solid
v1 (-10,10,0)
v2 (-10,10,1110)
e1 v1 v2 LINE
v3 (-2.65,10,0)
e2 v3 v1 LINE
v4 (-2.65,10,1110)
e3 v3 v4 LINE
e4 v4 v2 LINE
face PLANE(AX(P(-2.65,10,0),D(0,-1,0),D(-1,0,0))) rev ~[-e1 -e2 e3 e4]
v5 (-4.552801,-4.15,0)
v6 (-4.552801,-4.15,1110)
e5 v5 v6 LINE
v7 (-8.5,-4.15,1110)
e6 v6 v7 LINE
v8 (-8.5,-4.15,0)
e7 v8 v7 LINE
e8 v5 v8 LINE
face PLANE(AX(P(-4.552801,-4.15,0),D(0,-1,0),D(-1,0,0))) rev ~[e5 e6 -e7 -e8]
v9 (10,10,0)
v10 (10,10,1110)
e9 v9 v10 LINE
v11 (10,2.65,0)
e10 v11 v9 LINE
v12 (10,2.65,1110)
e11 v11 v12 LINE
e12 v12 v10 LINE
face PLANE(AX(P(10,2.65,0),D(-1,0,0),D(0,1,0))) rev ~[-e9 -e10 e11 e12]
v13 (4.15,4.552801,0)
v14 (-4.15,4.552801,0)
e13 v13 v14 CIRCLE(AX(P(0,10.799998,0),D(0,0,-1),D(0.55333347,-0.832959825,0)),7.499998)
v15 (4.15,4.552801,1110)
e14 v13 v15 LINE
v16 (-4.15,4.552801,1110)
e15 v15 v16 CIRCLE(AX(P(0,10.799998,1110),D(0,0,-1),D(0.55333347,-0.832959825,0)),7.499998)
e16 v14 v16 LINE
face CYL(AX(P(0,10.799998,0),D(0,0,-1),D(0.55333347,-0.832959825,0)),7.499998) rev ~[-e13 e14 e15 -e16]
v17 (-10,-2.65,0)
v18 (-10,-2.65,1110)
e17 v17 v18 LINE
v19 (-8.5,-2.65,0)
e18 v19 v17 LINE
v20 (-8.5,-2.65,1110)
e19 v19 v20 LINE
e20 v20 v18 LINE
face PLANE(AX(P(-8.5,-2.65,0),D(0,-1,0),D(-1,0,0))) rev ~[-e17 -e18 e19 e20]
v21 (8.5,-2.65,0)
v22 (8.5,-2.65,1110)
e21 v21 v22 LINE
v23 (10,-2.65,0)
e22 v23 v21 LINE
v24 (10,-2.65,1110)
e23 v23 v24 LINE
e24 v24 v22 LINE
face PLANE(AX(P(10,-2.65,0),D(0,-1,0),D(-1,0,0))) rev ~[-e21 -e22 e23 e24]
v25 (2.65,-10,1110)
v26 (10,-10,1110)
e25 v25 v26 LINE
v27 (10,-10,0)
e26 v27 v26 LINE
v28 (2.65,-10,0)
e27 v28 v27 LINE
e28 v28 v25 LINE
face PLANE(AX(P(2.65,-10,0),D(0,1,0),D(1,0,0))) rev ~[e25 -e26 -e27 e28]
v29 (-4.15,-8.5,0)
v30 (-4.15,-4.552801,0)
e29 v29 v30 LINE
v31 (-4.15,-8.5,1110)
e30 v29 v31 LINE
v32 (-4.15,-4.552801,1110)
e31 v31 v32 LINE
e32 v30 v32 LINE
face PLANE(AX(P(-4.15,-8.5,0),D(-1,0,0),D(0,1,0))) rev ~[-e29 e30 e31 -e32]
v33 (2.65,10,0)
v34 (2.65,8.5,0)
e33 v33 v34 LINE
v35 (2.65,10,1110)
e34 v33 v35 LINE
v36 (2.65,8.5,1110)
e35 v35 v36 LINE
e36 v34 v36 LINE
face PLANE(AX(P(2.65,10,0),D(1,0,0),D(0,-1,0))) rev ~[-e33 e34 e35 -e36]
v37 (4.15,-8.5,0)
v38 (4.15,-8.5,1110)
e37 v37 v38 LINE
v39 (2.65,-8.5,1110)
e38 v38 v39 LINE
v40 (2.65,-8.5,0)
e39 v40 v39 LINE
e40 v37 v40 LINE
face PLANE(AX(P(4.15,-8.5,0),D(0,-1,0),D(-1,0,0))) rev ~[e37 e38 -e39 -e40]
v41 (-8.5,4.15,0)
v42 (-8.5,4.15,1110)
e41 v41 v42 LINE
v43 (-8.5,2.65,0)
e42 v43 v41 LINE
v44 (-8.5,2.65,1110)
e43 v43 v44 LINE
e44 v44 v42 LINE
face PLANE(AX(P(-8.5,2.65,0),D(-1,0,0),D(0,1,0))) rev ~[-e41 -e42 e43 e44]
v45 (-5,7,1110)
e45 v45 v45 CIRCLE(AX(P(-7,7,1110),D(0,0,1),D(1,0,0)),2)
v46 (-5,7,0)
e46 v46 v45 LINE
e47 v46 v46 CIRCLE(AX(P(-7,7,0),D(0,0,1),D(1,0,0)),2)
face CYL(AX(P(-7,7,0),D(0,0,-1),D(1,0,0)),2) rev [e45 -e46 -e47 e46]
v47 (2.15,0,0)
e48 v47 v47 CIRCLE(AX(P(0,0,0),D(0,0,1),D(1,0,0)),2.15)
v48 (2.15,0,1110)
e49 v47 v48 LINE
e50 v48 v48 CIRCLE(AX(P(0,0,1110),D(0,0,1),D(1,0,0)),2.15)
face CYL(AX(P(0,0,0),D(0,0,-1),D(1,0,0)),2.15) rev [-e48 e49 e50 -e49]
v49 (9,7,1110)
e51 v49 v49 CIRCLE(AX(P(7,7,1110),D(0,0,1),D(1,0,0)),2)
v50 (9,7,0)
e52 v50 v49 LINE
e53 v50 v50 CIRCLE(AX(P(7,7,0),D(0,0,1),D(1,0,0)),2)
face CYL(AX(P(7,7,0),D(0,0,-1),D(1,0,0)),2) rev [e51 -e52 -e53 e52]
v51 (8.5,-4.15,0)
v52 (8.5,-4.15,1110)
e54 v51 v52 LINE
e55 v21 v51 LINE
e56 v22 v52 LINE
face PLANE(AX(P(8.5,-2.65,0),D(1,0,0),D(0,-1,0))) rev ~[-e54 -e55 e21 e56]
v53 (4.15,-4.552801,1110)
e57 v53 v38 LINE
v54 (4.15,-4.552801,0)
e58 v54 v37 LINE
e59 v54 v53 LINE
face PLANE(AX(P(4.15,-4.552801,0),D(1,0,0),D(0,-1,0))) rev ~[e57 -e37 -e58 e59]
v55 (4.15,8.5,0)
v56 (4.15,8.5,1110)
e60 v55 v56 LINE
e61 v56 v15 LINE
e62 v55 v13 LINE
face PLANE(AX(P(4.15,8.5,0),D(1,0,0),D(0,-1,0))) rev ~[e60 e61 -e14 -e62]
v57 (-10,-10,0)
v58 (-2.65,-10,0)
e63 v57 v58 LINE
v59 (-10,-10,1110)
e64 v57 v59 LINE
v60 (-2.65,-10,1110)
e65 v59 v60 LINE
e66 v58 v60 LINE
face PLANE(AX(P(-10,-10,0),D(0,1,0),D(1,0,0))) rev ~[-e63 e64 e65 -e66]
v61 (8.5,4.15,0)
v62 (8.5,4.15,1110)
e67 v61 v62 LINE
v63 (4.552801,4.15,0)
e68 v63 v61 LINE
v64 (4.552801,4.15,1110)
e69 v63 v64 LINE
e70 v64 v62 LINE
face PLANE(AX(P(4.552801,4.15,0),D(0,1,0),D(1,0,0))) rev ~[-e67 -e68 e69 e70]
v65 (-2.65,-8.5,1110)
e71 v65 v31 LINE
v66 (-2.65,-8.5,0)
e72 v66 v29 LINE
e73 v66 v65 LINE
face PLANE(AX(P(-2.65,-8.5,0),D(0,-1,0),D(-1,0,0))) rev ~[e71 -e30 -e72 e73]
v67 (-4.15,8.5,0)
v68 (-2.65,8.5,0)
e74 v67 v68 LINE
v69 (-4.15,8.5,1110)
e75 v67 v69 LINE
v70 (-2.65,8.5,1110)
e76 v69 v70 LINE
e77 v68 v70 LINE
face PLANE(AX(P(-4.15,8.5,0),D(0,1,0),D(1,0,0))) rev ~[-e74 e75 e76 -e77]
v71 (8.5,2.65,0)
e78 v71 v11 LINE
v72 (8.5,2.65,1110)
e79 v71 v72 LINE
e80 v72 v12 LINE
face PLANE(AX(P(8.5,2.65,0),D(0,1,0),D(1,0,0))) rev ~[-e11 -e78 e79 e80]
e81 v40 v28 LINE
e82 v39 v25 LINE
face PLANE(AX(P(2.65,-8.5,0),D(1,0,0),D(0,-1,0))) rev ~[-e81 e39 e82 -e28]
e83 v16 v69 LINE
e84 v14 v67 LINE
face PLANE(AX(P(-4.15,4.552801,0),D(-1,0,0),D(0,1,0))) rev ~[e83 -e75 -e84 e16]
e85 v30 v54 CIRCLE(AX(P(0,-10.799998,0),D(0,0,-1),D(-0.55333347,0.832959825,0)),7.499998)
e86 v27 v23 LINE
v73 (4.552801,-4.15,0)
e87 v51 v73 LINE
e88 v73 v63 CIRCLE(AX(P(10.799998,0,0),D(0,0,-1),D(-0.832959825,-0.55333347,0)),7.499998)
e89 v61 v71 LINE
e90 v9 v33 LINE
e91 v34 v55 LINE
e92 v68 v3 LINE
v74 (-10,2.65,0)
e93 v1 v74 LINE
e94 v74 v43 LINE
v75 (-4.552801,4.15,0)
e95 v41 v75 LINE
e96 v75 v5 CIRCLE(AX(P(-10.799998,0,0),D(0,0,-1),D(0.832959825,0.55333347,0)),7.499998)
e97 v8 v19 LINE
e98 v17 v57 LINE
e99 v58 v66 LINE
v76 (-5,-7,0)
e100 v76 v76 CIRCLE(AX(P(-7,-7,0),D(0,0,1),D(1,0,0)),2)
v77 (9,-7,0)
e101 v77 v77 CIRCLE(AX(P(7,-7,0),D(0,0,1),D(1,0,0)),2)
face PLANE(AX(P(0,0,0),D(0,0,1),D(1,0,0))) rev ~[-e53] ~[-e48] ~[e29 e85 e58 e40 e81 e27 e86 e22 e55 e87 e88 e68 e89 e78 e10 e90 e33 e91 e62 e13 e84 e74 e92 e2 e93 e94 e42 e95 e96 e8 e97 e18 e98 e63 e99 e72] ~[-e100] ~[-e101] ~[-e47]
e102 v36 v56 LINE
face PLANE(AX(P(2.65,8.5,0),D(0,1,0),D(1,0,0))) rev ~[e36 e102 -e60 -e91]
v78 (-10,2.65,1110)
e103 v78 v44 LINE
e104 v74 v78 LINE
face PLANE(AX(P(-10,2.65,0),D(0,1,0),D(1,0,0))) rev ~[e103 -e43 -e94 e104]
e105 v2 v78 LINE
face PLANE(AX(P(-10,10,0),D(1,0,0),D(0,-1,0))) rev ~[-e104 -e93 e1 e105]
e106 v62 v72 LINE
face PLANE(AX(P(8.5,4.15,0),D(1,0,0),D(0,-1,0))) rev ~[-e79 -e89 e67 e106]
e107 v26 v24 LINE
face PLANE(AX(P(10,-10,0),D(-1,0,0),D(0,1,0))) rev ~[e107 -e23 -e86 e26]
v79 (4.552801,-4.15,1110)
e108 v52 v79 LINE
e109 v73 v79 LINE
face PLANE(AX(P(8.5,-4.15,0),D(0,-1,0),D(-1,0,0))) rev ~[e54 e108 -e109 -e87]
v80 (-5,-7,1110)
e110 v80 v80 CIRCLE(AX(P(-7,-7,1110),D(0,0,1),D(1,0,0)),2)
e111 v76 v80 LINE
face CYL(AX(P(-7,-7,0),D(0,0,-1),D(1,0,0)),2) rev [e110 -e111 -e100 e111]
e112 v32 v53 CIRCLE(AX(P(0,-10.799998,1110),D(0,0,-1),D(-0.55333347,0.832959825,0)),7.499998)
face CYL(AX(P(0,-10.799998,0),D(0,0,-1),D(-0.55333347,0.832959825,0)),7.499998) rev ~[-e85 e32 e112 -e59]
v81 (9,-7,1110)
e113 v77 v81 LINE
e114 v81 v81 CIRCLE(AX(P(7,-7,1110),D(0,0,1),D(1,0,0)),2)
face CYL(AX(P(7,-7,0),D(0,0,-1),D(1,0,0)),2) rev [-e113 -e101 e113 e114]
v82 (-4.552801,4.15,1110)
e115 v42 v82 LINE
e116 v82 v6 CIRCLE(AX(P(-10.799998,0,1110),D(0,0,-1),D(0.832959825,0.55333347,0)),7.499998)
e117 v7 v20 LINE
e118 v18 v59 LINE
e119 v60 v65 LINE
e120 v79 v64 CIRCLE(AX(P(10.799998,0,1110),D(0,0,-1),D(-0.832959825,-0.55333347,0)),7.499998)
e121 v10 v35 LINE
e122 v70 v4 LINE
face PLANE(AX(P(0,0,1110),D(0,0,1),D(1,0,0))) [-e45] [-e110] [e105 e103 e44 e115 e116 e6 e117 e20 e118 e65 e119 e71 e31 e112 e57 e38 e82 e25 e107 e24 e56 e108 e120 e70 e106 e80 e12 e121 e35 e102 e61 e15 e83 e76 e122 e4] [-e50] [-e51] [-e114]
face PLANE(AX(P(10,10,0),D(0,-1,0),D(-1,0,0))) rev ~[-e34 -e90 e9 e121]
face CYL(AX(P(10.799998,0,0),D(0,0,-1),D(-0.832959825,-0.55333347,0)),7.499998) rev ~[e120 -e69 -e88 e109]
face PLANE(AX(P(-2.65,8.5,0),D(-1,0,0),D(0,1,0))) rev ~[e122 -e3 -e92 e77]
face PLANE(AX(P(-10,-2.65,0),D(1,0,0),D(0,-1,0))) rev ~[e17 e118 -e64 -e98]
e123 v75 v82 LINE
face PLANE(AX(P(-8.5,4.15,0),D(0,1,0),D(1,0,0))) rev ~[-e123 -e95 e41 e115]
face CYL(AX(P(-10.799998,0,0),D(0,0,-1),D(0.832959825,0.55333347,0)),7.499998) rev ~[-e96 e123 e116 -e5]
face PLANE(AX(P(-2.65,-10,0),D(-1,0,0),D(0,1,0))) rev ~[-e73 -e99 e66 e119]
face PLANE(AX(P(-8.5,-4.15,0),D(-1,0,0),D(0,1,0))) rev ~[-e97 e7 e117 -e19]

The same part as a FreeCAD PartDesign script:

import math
import FreeCAD as App
import Part
import Sketcher

V = App.Vector
Q = App.Units.Quantity

doc = App.newDocument("Part")
body = doc.addObject("PartDesign::Body", "Body")

sketch1 = body.newObject("Sketcher::SketchObject", "Sketch")
sketch1.AttachmentSupport = (doc.getObject("XY_Plane"), [""])
sketch1.MapMode = "FlatFace"
sketch1.addGeometry(Part.LineSegment(V(-10, 10, 0), V(-10, 2.65, 0)), False)
sketch1.addGeometry(Part.LineSegment(V(-10, 2.65, 0), V(-8.5, 2.65, 0)), False)
sketch1.addGeometry(Part.LineSegment(V(-8.5, 2.65, 0), V(-8.5, 4.15, 0)), False)
sketch1.addGeometry(Part.LineSegment(V(-8.5, 4.15, 0), V(-4.552801, 4.15, 0)), False)
sketch1.addGeometry(Part.ArcOfCircle(Part.Circle(V(-10.799998, 0, 0), V(0, 0, 1), 7.499998), math.radians(-33.596005), math.radians(33.596005)), False)
sketch1.addGeometry(Part.LineSegment(V(-4.552801, -4.15, 0), V(-8.5, -4.15, 0)), False)
sketch1.addGeometry(Part.LineSegment(V(-8.5, -4.15, 0), V(-8.5, -2.65, 0)), False)
sketch1.addGeometry(Part.LineSegment(V(-8.5, -2.65, 0), V(-10, -2.65, 0)), False)
sketch1.addGeometry(Part.LineSegment(V(-10, -2.65, 0), V(-10, -10, 0)), False)
sketch1.addGeometry(Part.LineSegment(V(-10, -10, 0), V(-2.65, -10, 0)), False)
sketch1.addGeometry(Part.LineSegment(V(-2.65, -10, 0), V(-2.65, -8.5, 0)), False)
sketch1.addGeometry(Part.LineSegment(V(-2.65, -8.5, 0), V(-4.15, -8.5, 0)), False)
sketch1.addGeometry(Part.LineSegment(V(-4.15, -8.5, 0), V(-4.15, -4.552801, 0)), False)
sketch1.addGeometry(Part.ArcOfCircle(Part.Circle(V(0, -10.799998, 0), V(0, 0, 1), 7.499998), math.radians(56.403995), math.radians(123.596005)), False)
sketch1.addGeometry(Part.LineSegment(V(4.15, -4.552801, 0), V(4.15, -8.5, 0)), False)
sketch1.addGeometry(Part.LineSegment(V(4.15, -8.5, 0), V(2.65, -8.5, 0)), False)
sketch1.addGeometry(Part.LineSegment(V(2.65, -8.5, 0), V(2.65, -10, 0)), False)
sketch1.addGeometry(Part.LineSegment(V(2.65, -10, 0), V(10, -10, 0)), False)
sketch1.addGeometry(Part.LineSegment(V(10, -10, 0), V(10, -2.65, 0)), False)
sketch1.addGeometry(Part.LineSegment(V(10, -2.65, 0), V(8.5, -2.65, 0)), False)
sketch1.addGeometry(Part.LineSegment(V(8.5, -2.65, 0), V(8.5, -4.15, 0)), False)
sketch1.addGeometry(Part.LineSegment(V(8.5, -4.15, 0), V(4.552801, -4.15, 0)), False)
sketch1.addGeometry(Part.ArcOfCircle(Part.Circle(V(10.799998, 0, 0), V(0, 0, 1), 7.499998), math.radians(146.403995), math.radians(213.596005)), False)
sketch1.addGeometry(Part.LineSegment(V(4.552801, 4.15, 0), V(8.5, 4.15, 0)), False)
sketch1.addGeometry(Part.LineSegment(V(8.5, 4.15, 0), V(8.5, 2.65, 0)), False)
sketch1.addGeometry(Part.LineSegment(V(8.5, 2.65, 0), V(10, 2.65, 0)), False)
sketch1.addGeometry(Part.LineSegment(V(10, 2.65, 0), V(10, 10, 0)), False)
sketch1.addGeometry(Part.LineSegment(V(10, 10, 0), V(2.65, 10, 0)), False)
sketch1.addGeometry(Part.LineSegment(V(2.65, 10, 0), V(2.65, 8.5, 0)), False)
sketch1.addGeometry(Part.LineSegment(V(2.65, 8.5, 0), V(4.15, 8.5, 0)), False)
sketch1.addGeometry(Part.LineSegment(V(4.15, 8.5, 0), V(4.15, 4.552801, 0)), False)
sketch1.addGeometry(Part.ArcOfCircle(Part.Circle(V(0, 10.799998, 0), V(0, 0, 1), 7.499998), math.radians(-123.596005), math.radians(-56.403995)), False)
sketch1.addGeometry(Part.LineSegment(V(-4.15, 4.552801, 0), V(-4.15, 8.5, 0)), False)
sketch1.addGeometry(Part.LineSegment(V(-4.15, 8.5, 0), V(-2.65, 8.5, 0)), False)
sketch1.addGeometry(Part.LineSegment(V(-2.65, 8.5, 0), V(-2.65, 10, 0)), False)
sketch1.addGeometry(Part.LineSegment(V(-2.65, 10, 0), V(-10, 10, 0)), False)
sketch1.addGeometry(Part.Circle(V(-7, -7, 0), V(0, 0, 1), 2), False)
sketch1.addGeometry(Part.Circle(V(7, -7, 0), V(0, 0, 1), 2), False)
sketch1.addGeometry(Part.Circle(V(-7, 7, 0), V(0, 0, 1), 2), False)
sketch1.addGeometry(Part.Circle(V(0, 0, 0), V(0, 0, 1), 2.15), False)
sketch1.addGeometry(Part.Circle(V(7, 7, 0), V(0, 0, 1), 2), False)
sketch1.addConstraint(Sketcher.Constraint("Coincident", 0, 2, 1, 1))
sketch1.addConstraint(Sketcher.Constraint("Coincident", 1, 2, 2, 1))
sketch1.addConstraint(Sketcher.Constraint("Coincident", 2, 2, 3, 1))
sketch1.addConstraint(Sketcher.Constraint("Coincident", 3, 2, 4, 2))
sketch1.addConstraint(Sketcher.Constraint("Coincident", 4, 1, 5, 1))
sketch1.addConstraint(Sketcher.Constraint("Coincident", 5, 2, 6, 1))
sketch1.addConstraint(Sketcher.Constraint("Coincident", 6, 2, 7, 1))
sketch1.addConstraint(Sketcher.Constraint("Coincident", 7, 2, 8, 1))
sketch1.addConstraint(Sketcher.Constraint("Coincident", 8, 2, 9, 1))
sketch1.addConstraint(Sketcher.Constraint("Coincident", 9, 2, 10, 1))
sketch1.addConstraint(Sketcher.Constraint("Coincident", 10, 2, 11, 1))
sketch1.addConstraint(Sketcher.Constraint("Coincident", 11, 2, 12, 1))
sketch1.addConstraint(Sketcher.Constraint("Coincident", 12, 2, 13, 2))
sketch1.addConstraint(Sketcher.Constraint("Coincident", 13, 1, 14, 1))
sketch1.addConstraint(Sketcher.Constraint("Coincident", 14, 2, 15, 1))
sketch1.addConstraint(Sketcher.Constraint("Coincident", 15, 2, 16, 1))
sketch1.addConstraint(Sketcher.Constraint("Coincident", 16, 2, 17, 1))
sketch1.addConstraint(Sketcher.Constraint("Coincident", 17, 2, 18, 1))
sketch1.addConstraint(Sketcher.Constraint("Coincident", 18, 2, 19, 1))
sketch1.addConstraint(Sketcher.Constraint("Coincident", 19, 2, 20, 1))
sketch1.addConstraint(Sketcher.Constraint("Coincident", 20, 2, 21, 1))
sketch1.addConstraint(Sketcher.Constraint("Coincident", 21, 2, 22, 2))
sketch1.addConstraint(Sketcher.Constraint("Coincident", 22, 1, 23, 1))
sketch1.addConstraint(Sketcher.Constraint("Coincident", 23, 2, 24, 1))
sketch1.addConstraint(Sketcher.Constraint("Coincident", 24, 2, 25, 1))
sketch1.addConstraint(Sketcher.Constraint("Coincident", 25, 2, 26, 1))
sketch1.addConstraint(Sketcher.Constraint("Coincident", 26, 2, 27, 1))
sketch1.addConstraint(Sketcher.Constraint("Coincident", 27, 2, 28, 1))
sketch1.addConstraint(Sketcher.Constraint("Coincident", 28, 2, 29, 1))
sketch1.addConstraint(Sketcher.Constraint("Coincident", 29, 2, 30, 1))
sketch1.addConstraint(Sketcher.Constraint("Coincident", 30, 2, 31, 2))
sketch1.addConstraint(Sketcher.Constraint("Coincident", 31, 1, 32, 1))
sketch1.addConstraint(Sketcher.Constraint("Coincident", 32, 2, 33, 1))
sketch1.addConstraint(Sketcher.Constraint("Coincident", 33, 2, 34, 1))
sketch1.addConstraint(Sketcher.Constraint("Coincident", 34, 2, 35, 1))
sketch1.addConstraint(Sketcher.Constraint("Coincident", 35, 2, 0, 1))
sketch1.addConstraint(Sketcher.Constraint("Vertical", 0))
sketch1.addConstraint(Sketcher.Constraint("Horizontal", 1))
sketch1.addConstraint(Sketcher.Constraint("Vertical", 2))
sketch1.addConstraint(Sketcher.Constraint("Horizontal", 3))
sketch1.addConstraint(Sketcher.Constraint("Horizontal", 5))
sketch1.addConstraint(Sketcher.Constraint("Vertical", 6))
sketch1.addConstraint(Sketcher.Constraint("Horizontal", 7))
sketch1.addConstraint(Sketcher.Constraint("Vertical", 8))
sketch1.addConstraint(Sketcher.Constraint("Horizontal", 9))
sketch1.addConstraint(Sketcher.Constraint("Vertical", 10))
sketch1.addConstraint(Sketcher.Constraint("Horizontal", 11))
sketch1.addConstraint(Sketcher.Constraint("Vertical", 12))
sketch1.addConstraint(Sketcher.Constraint("Vertical", 14))
sketch1.addConstraint(Sketcher.Constraint("Horizontal", 15))
sketch1.addConstraint(Sketcher.Constraint("Vertical", 16))
sketch1.addConstraint(Sketcher.Constraint("Horizontal", 17))
sketch1.addConstraint(Sketcher.Constraint("Vertical", 18))
sketch1.addConstraint(Sketcher.Constraint("Horizontal", 19))
sketch1.addConstraint(Sketcher.Constraint("Vertical", 20))
sketch1.addConstraint(Sketcher.Constraint("Horizontal", 21))
sketch1.addConstraint(Sketcher.Constraint("Horizontal", 23))
sketch1.addConstraint(Sketcher.Constraint("Vertical", 24))
sketch1.addConstraint(Sketcher.Constraint("Horizontal", 25))
sketch1.addConstraint(Sketcher.Constraint("Vertical", 26))
sketch1.addConstraint(Sketcher.Constraint("Horizontal", 27))
sketch1.addConstraint(Sketcher.Constraint("Vertical", 28))
sketch1.addConstraint(Sketcher.Constraint("Horizontal", 29))
sketch1.addConstraint(Sketcher.Constraint("Vertical", 30))
sketch1.addConstraint(Sketcher.Constraint("Vertical", 32))
sketch1.addConstraint(Sketcher.Constraint("Horizontal", 33))
sketch1.addConstraint(Sketcher.Constraint("Vertical", 34))
sketch1.addConstraint(Sketcher.Constraint("Horizontal", 35))
sketch1.addConstraint(Sketcher.Constraint("Coincident", 39, 3, -1, 1))
sketch1.addConstraint(Sketcher.Constraint("Equal", 4, 13))
sketch1.addConstraint(Sketcher.Constraint("Equal", 13, 22))
sketch1.addConstraint(Sketcher.Constraint("Equal", 22, 31))
sketch1.addConstraint(Sketcher.Constraint("Equal", 36, 37))
sketch1.addConstraint(Sketcher.Constraint("Equal", 37, 38))
sketch1.addConstraint(Sketcher.Constraint("Equal", 38, 40))
sketch1.addConstraint(Sketcher.Constraint("Symmetric", 4, 3, 22, 3, -1, 1))
sketch1.addConstraint(Sketcher.Constraint("Symmetric", 13, 3, 31, 3, -1, 1))
sketch1.addConstraint(Sketcher.Constraint("Symmetric", 37, 3, 38, 3, -1, 1))
sketch1.addConstraint(Sketcher.Constraint("Symmetric", 36, 3, 40, 3, -1, 1))
sketch1.addConstraint(Sketcher.Constraint("Symmetric", 0, 2, 18, 2, -1, 1))
sketch1.addConstraint(Sketcher.Constraint("Symmetric", 2, 2, 20, 2, -1, 1))
sketch1.addConstraint(Sketcher.Constraint("Symmetric", 5, 2, 23, 2, -1, 1))
sketch1.addConstraint(Sketcher.Constraint("Symmetric", 7, 2, 25, 2, -1, 1))
sketch1.addConstraint(Sketcher.Constraint("Symmetric", 9, 2, 27, 2, -1, 1))
sketch1.addConstraint(Sketcher.Constraint("Symmetric", 11, 2, 29, 2, -1, 1))
sketch1.addConstraint(Sketcher.Constraint("Symmetric", 14, 2, 32, 2, -1, 1))
sketch1.addConstraint(Sketcher.Constraint("Symmetric", 16, 2, 34, 2, -1, 1))
sketch1.addConstraint(Sketcher.Constraint("Symmetric", 36, 3, 37, 3, -2))
sketch1.addConstraint(Sketcher.Constraint("Symmetric", 12, 2, 13, 1, -2))
sketch1.addConstraint(Sketcher.Constraint("Symmetric", 10, 2, 15, 2, -2))
sketch1.addConstraint(Sketcher.Constraint("Symmetric", 8, 2, 17, 2, -2))
sketch1.addConstraint(Sketcher.Constraint("Symmetric", 6, 2, 19, 2, -2))
sketch1.addConstraint(Sketcher.Constraint("Symmetric", 4, 1, 21, 2, -2))
sketch1.addConstraint(Sketcher.Constraint("Equal", 7, 11))
sketch1.addConstraint(Sketcher.Constraint("Equal", 35, 0))
sketch1.addConstraint(Sketcher.Constraint("Equal", 33, 2))
sketch1.addConstraint(Sketcher.Constraint("Equal", 6, 10))
sketch1.addConstraint(Sketcher.Constraint("Equal", 23, 12))
sketch1.addConstraint(Sketcher.Constraint("Diameter", 36, Q("4 mm")))
sketch1.addConstraint(Sketcher.Constraint("Diameter", 39, Q("4.3 mm")))
sketch1.addConstraint(Sketcher.Constraint("Radius", 4, Q("7.499998 mm")))
sketch1.addConstraint(Sketcher.Constraint("DistanceX", 1, 1, 1, 2, Q("1.5 mm")))
sketch1.addConstraint(Sketcher.Constraint("DistanceX", 36, 3, -1, 1, Q("7 mm")))
sketch1.addConstraint(Sketcher.Constraint("DistanceY", 36, 3, -1, 1, Q("7 mm")))
sketch1.addConstraint(Sketcher.Constraint("DistanceX", 0, 2, -1, 1, Q("10 mm")))
sketch1.addConstraint(Sketcher.Constraint("DistanceY", 8, 2, -1, 1, Q("10 mm")))
sketch1.addConstraint(Sketcher.Constraint("DistanceX", 9, 1, 9, 2, Q("7.35 mm")))
sketch1.addConstraint(Sketcher.Constraint("DistanceX", 4, 3, -1, 1, Q("10.799998 mm")))
pad1 = body.newObject("PartDesign::Pad", "Pad")
pad1.Profile = sketch1
pad1.Length = 1110

doc.recompute()
